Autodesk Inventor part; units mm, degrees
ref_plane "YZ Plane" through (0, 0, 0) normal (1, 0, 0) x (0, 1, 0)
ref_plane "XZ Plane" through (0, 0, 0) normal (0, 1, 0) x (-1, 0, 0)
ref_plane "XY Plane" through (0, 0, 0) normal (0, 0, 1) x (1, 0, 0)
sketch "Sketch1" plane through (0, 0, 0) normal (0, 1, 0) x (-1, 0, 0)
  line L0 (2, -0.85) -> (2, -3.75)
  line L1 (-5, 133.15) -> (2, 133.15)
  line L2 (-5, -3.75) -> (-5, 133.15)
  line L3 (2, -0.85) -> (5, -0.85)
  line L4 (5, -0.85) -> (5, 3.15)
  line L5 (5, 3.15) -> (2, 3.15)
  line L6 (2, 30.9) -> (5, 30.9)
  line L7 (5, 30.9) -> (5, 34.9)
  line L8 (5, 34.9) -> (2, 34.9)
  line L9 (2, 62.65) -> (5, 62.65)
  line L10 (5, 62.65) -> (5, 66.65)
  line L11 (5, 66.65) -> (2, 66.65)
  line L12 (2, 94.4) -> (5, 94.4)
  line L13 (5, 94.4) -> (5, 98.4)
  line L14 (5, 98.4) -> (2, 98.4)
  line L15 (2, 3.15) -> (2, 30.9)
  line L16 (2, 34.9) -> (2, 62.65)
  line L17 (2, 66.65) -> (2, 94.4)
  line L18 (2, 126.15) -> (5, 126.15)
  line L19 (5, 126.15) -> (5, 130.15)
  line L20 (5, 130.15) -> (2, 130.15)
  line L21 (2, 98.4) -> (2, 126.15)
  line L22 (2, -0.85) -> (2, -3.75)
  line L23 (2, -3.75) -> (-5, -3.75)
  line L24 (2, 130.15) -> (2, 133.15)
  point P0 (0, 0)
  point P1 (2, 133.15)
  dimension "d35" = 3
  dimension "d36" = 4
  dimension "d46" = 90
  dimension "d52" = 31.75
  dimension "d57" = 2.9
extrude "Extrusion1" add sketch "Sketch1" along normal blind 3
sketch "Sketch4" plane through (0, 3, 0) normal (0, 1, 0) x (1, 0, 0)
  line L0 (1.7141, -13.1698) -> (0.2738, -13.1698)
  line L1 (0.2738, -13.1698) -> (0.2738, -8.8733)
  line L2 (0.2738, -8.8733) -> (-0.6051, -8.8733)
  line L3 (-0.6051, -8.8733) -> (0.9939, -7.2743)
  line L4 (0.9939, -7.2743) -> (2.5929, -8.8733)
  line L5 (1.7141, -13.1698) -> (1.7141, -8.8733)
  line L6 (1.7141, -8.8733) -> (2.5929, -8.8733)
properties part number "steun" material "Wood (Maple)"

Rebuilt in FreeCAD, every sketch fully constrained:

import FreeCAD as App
import Part
import Sketcher
from FreeCAD import Vector


def add_polygon(sketch, points):
    """Adds a closed chain of lines whose ends are joined by coincident constraints."""
    first, n = sketch.GeometryCount, len(points)
    for a, b in zip(points, points[1:] + points[:1]):
        sketch.addGeometry(Part.LineSegment(App.Vector(*a, 0), App.Vector(*b, 0)), False)
    for i in range(n):
        sketch.addConstraint(Sketcher.Constraint("Coincident", first + i, 2, first + (i + 1) % n, 1))

doc = App.newDocument("Part")
body = doc.addObject("PartDesign::Body", "Body")

# Sketch on XZ plane
sketch1 = body.newObject("Sketcher::SketchObject", "Sketch")
sketch1.AttachmentSupport = (doc.getObject("XZ_Plane"), [""])
sketch1.MapMode = "FlatFace"
add_polygon(sketch1, [(-2, -3.8), (-2, -0.8), (-5, -0.8), (-5, 3.1), (-2, 3.1), (-2, 30.9), (-5, 30.9), (-5, 34.9), (-2, 34.9), (-2, 62.6), (-5, 62.6), (-5, 66.7), (-2, 66.7), (-2, 94.4), (-5, 94.4), (-5, 98.4), (-2, 98.4), (-2, 126.2), (-5, 126.2), (-5, 130.2), (-2, 130.2), (-2, 133.2), (5, 133.2), (5, -3.8)])  # lines 0-23
sketch1.addConstraint([
    Sketcher.Constraint("Vertical", 0),
    Sketcher.Constraint("Horizontal", 1),
    Sketcher.Constraint("Vertical", 2),
    Sketcher.Constraint("Horizontal", 3),
    Sketcher.Constraint("Vertical", 4),
    Sketcher.Constraint("Horizontal", 5),
    Sketcher.Constraint("Vertical", 6),
    Sketcher.Constraint("Horizontal", 7),
    Sketcher.Constraint("Vertical", 8),
    Sketcher.Constraint("Horizontal", 9),
    Sketcher.Constraint("Vertical", 10),
    Sketcher.Constraint("Horizontal", 11),
    Sketcher.Constraint("Vertical", 12),
    Sketcher.Constraint("Horizontal", 13),
    Sketcher.Constraint("Vertical", 14),
    Sketcher.Constraint("Horizontal", 15),
    Sketcher.Constraint("Vertical", 16),
    Sketcher.Constraint("Horizontal", 17),
    Sketcher.Constraint("Vertical", 18),
    Sketcher.Constraint("Horizontal", 19),
    Sketcher.Constraint("Vertical", 20),
    Sketcher.Constraint("Horizontal", 21),
    Sketcher.Constraint("Vertical", 22),
    Sketcher.Constraint("Horizontal", 23),
    Sketcher.Constraint("Vertical", 0, 2, 3, 2),
    Sketcher.Constraint("Vertical", 2, 2, 5, 2),
    Sketcher.Constraint("Vertical", 4, 2, 7, 2),
    Sketcher.Constraint("Vertical", 6, 2, 9, 2),
    Sketcher.Constraint("Vertical", 8, 2, 11, 2),
    Sketcher.Constraint("Vertical", 10, 2, 13, 2),
    Sketcher.Constraint("Vertical", 12, 2, 15, 2),
    Sketcher.Constraint("Vertical", 14, 2, 17, 2),
    Sketcher.Constraint("Vertical", 16, 2, 19, 2),
    Sketcher.Constraint("Equal", 2, 6),
    Sketcher.Constraint("Equal", 4, 8),
    Sketcher.Constraint("Equal", 6, 10),
    Sketcher.Constraint("Equal", 8, 12),
    Sketcher.Constraint("Equal", 10, 14),
    Sketcher.Constraint("Equal", 12, 16),
    Sketcher.Constraint("Equal", 14, 18),
    Sketcher.Constraint("Equal", 19, 20),
    Sketcher.Constraint("DistanceX", 1, 2, 1, 1, 3.0),
    Sketcher.Constraint("DistanceY", 2, 1, 2, 2, 4.0),
    Sketcher.Constraint("DistanceY", 0, 1, 0, 2, 2.9),
    Sketcher.Constraint("DistanceX", 18, 2, 21, 2, 10.0),
    Sketcher.Constraint("DistanceY", 0, 2, 4, 2, 31.75),
    Sketcher.Constraint("DistanceX", 0, 2, -1, 1, 2.0),
    Sketcher.Constraint("DistanceY", -1, 1, 4, 2, 30.9),
])
pad1 = body.newObject("PartDesign::Pad", "Pad")
pad1.Profile = sketch1
pad1.Length = 3
pad1.Reversed = True

doc.recompute()
